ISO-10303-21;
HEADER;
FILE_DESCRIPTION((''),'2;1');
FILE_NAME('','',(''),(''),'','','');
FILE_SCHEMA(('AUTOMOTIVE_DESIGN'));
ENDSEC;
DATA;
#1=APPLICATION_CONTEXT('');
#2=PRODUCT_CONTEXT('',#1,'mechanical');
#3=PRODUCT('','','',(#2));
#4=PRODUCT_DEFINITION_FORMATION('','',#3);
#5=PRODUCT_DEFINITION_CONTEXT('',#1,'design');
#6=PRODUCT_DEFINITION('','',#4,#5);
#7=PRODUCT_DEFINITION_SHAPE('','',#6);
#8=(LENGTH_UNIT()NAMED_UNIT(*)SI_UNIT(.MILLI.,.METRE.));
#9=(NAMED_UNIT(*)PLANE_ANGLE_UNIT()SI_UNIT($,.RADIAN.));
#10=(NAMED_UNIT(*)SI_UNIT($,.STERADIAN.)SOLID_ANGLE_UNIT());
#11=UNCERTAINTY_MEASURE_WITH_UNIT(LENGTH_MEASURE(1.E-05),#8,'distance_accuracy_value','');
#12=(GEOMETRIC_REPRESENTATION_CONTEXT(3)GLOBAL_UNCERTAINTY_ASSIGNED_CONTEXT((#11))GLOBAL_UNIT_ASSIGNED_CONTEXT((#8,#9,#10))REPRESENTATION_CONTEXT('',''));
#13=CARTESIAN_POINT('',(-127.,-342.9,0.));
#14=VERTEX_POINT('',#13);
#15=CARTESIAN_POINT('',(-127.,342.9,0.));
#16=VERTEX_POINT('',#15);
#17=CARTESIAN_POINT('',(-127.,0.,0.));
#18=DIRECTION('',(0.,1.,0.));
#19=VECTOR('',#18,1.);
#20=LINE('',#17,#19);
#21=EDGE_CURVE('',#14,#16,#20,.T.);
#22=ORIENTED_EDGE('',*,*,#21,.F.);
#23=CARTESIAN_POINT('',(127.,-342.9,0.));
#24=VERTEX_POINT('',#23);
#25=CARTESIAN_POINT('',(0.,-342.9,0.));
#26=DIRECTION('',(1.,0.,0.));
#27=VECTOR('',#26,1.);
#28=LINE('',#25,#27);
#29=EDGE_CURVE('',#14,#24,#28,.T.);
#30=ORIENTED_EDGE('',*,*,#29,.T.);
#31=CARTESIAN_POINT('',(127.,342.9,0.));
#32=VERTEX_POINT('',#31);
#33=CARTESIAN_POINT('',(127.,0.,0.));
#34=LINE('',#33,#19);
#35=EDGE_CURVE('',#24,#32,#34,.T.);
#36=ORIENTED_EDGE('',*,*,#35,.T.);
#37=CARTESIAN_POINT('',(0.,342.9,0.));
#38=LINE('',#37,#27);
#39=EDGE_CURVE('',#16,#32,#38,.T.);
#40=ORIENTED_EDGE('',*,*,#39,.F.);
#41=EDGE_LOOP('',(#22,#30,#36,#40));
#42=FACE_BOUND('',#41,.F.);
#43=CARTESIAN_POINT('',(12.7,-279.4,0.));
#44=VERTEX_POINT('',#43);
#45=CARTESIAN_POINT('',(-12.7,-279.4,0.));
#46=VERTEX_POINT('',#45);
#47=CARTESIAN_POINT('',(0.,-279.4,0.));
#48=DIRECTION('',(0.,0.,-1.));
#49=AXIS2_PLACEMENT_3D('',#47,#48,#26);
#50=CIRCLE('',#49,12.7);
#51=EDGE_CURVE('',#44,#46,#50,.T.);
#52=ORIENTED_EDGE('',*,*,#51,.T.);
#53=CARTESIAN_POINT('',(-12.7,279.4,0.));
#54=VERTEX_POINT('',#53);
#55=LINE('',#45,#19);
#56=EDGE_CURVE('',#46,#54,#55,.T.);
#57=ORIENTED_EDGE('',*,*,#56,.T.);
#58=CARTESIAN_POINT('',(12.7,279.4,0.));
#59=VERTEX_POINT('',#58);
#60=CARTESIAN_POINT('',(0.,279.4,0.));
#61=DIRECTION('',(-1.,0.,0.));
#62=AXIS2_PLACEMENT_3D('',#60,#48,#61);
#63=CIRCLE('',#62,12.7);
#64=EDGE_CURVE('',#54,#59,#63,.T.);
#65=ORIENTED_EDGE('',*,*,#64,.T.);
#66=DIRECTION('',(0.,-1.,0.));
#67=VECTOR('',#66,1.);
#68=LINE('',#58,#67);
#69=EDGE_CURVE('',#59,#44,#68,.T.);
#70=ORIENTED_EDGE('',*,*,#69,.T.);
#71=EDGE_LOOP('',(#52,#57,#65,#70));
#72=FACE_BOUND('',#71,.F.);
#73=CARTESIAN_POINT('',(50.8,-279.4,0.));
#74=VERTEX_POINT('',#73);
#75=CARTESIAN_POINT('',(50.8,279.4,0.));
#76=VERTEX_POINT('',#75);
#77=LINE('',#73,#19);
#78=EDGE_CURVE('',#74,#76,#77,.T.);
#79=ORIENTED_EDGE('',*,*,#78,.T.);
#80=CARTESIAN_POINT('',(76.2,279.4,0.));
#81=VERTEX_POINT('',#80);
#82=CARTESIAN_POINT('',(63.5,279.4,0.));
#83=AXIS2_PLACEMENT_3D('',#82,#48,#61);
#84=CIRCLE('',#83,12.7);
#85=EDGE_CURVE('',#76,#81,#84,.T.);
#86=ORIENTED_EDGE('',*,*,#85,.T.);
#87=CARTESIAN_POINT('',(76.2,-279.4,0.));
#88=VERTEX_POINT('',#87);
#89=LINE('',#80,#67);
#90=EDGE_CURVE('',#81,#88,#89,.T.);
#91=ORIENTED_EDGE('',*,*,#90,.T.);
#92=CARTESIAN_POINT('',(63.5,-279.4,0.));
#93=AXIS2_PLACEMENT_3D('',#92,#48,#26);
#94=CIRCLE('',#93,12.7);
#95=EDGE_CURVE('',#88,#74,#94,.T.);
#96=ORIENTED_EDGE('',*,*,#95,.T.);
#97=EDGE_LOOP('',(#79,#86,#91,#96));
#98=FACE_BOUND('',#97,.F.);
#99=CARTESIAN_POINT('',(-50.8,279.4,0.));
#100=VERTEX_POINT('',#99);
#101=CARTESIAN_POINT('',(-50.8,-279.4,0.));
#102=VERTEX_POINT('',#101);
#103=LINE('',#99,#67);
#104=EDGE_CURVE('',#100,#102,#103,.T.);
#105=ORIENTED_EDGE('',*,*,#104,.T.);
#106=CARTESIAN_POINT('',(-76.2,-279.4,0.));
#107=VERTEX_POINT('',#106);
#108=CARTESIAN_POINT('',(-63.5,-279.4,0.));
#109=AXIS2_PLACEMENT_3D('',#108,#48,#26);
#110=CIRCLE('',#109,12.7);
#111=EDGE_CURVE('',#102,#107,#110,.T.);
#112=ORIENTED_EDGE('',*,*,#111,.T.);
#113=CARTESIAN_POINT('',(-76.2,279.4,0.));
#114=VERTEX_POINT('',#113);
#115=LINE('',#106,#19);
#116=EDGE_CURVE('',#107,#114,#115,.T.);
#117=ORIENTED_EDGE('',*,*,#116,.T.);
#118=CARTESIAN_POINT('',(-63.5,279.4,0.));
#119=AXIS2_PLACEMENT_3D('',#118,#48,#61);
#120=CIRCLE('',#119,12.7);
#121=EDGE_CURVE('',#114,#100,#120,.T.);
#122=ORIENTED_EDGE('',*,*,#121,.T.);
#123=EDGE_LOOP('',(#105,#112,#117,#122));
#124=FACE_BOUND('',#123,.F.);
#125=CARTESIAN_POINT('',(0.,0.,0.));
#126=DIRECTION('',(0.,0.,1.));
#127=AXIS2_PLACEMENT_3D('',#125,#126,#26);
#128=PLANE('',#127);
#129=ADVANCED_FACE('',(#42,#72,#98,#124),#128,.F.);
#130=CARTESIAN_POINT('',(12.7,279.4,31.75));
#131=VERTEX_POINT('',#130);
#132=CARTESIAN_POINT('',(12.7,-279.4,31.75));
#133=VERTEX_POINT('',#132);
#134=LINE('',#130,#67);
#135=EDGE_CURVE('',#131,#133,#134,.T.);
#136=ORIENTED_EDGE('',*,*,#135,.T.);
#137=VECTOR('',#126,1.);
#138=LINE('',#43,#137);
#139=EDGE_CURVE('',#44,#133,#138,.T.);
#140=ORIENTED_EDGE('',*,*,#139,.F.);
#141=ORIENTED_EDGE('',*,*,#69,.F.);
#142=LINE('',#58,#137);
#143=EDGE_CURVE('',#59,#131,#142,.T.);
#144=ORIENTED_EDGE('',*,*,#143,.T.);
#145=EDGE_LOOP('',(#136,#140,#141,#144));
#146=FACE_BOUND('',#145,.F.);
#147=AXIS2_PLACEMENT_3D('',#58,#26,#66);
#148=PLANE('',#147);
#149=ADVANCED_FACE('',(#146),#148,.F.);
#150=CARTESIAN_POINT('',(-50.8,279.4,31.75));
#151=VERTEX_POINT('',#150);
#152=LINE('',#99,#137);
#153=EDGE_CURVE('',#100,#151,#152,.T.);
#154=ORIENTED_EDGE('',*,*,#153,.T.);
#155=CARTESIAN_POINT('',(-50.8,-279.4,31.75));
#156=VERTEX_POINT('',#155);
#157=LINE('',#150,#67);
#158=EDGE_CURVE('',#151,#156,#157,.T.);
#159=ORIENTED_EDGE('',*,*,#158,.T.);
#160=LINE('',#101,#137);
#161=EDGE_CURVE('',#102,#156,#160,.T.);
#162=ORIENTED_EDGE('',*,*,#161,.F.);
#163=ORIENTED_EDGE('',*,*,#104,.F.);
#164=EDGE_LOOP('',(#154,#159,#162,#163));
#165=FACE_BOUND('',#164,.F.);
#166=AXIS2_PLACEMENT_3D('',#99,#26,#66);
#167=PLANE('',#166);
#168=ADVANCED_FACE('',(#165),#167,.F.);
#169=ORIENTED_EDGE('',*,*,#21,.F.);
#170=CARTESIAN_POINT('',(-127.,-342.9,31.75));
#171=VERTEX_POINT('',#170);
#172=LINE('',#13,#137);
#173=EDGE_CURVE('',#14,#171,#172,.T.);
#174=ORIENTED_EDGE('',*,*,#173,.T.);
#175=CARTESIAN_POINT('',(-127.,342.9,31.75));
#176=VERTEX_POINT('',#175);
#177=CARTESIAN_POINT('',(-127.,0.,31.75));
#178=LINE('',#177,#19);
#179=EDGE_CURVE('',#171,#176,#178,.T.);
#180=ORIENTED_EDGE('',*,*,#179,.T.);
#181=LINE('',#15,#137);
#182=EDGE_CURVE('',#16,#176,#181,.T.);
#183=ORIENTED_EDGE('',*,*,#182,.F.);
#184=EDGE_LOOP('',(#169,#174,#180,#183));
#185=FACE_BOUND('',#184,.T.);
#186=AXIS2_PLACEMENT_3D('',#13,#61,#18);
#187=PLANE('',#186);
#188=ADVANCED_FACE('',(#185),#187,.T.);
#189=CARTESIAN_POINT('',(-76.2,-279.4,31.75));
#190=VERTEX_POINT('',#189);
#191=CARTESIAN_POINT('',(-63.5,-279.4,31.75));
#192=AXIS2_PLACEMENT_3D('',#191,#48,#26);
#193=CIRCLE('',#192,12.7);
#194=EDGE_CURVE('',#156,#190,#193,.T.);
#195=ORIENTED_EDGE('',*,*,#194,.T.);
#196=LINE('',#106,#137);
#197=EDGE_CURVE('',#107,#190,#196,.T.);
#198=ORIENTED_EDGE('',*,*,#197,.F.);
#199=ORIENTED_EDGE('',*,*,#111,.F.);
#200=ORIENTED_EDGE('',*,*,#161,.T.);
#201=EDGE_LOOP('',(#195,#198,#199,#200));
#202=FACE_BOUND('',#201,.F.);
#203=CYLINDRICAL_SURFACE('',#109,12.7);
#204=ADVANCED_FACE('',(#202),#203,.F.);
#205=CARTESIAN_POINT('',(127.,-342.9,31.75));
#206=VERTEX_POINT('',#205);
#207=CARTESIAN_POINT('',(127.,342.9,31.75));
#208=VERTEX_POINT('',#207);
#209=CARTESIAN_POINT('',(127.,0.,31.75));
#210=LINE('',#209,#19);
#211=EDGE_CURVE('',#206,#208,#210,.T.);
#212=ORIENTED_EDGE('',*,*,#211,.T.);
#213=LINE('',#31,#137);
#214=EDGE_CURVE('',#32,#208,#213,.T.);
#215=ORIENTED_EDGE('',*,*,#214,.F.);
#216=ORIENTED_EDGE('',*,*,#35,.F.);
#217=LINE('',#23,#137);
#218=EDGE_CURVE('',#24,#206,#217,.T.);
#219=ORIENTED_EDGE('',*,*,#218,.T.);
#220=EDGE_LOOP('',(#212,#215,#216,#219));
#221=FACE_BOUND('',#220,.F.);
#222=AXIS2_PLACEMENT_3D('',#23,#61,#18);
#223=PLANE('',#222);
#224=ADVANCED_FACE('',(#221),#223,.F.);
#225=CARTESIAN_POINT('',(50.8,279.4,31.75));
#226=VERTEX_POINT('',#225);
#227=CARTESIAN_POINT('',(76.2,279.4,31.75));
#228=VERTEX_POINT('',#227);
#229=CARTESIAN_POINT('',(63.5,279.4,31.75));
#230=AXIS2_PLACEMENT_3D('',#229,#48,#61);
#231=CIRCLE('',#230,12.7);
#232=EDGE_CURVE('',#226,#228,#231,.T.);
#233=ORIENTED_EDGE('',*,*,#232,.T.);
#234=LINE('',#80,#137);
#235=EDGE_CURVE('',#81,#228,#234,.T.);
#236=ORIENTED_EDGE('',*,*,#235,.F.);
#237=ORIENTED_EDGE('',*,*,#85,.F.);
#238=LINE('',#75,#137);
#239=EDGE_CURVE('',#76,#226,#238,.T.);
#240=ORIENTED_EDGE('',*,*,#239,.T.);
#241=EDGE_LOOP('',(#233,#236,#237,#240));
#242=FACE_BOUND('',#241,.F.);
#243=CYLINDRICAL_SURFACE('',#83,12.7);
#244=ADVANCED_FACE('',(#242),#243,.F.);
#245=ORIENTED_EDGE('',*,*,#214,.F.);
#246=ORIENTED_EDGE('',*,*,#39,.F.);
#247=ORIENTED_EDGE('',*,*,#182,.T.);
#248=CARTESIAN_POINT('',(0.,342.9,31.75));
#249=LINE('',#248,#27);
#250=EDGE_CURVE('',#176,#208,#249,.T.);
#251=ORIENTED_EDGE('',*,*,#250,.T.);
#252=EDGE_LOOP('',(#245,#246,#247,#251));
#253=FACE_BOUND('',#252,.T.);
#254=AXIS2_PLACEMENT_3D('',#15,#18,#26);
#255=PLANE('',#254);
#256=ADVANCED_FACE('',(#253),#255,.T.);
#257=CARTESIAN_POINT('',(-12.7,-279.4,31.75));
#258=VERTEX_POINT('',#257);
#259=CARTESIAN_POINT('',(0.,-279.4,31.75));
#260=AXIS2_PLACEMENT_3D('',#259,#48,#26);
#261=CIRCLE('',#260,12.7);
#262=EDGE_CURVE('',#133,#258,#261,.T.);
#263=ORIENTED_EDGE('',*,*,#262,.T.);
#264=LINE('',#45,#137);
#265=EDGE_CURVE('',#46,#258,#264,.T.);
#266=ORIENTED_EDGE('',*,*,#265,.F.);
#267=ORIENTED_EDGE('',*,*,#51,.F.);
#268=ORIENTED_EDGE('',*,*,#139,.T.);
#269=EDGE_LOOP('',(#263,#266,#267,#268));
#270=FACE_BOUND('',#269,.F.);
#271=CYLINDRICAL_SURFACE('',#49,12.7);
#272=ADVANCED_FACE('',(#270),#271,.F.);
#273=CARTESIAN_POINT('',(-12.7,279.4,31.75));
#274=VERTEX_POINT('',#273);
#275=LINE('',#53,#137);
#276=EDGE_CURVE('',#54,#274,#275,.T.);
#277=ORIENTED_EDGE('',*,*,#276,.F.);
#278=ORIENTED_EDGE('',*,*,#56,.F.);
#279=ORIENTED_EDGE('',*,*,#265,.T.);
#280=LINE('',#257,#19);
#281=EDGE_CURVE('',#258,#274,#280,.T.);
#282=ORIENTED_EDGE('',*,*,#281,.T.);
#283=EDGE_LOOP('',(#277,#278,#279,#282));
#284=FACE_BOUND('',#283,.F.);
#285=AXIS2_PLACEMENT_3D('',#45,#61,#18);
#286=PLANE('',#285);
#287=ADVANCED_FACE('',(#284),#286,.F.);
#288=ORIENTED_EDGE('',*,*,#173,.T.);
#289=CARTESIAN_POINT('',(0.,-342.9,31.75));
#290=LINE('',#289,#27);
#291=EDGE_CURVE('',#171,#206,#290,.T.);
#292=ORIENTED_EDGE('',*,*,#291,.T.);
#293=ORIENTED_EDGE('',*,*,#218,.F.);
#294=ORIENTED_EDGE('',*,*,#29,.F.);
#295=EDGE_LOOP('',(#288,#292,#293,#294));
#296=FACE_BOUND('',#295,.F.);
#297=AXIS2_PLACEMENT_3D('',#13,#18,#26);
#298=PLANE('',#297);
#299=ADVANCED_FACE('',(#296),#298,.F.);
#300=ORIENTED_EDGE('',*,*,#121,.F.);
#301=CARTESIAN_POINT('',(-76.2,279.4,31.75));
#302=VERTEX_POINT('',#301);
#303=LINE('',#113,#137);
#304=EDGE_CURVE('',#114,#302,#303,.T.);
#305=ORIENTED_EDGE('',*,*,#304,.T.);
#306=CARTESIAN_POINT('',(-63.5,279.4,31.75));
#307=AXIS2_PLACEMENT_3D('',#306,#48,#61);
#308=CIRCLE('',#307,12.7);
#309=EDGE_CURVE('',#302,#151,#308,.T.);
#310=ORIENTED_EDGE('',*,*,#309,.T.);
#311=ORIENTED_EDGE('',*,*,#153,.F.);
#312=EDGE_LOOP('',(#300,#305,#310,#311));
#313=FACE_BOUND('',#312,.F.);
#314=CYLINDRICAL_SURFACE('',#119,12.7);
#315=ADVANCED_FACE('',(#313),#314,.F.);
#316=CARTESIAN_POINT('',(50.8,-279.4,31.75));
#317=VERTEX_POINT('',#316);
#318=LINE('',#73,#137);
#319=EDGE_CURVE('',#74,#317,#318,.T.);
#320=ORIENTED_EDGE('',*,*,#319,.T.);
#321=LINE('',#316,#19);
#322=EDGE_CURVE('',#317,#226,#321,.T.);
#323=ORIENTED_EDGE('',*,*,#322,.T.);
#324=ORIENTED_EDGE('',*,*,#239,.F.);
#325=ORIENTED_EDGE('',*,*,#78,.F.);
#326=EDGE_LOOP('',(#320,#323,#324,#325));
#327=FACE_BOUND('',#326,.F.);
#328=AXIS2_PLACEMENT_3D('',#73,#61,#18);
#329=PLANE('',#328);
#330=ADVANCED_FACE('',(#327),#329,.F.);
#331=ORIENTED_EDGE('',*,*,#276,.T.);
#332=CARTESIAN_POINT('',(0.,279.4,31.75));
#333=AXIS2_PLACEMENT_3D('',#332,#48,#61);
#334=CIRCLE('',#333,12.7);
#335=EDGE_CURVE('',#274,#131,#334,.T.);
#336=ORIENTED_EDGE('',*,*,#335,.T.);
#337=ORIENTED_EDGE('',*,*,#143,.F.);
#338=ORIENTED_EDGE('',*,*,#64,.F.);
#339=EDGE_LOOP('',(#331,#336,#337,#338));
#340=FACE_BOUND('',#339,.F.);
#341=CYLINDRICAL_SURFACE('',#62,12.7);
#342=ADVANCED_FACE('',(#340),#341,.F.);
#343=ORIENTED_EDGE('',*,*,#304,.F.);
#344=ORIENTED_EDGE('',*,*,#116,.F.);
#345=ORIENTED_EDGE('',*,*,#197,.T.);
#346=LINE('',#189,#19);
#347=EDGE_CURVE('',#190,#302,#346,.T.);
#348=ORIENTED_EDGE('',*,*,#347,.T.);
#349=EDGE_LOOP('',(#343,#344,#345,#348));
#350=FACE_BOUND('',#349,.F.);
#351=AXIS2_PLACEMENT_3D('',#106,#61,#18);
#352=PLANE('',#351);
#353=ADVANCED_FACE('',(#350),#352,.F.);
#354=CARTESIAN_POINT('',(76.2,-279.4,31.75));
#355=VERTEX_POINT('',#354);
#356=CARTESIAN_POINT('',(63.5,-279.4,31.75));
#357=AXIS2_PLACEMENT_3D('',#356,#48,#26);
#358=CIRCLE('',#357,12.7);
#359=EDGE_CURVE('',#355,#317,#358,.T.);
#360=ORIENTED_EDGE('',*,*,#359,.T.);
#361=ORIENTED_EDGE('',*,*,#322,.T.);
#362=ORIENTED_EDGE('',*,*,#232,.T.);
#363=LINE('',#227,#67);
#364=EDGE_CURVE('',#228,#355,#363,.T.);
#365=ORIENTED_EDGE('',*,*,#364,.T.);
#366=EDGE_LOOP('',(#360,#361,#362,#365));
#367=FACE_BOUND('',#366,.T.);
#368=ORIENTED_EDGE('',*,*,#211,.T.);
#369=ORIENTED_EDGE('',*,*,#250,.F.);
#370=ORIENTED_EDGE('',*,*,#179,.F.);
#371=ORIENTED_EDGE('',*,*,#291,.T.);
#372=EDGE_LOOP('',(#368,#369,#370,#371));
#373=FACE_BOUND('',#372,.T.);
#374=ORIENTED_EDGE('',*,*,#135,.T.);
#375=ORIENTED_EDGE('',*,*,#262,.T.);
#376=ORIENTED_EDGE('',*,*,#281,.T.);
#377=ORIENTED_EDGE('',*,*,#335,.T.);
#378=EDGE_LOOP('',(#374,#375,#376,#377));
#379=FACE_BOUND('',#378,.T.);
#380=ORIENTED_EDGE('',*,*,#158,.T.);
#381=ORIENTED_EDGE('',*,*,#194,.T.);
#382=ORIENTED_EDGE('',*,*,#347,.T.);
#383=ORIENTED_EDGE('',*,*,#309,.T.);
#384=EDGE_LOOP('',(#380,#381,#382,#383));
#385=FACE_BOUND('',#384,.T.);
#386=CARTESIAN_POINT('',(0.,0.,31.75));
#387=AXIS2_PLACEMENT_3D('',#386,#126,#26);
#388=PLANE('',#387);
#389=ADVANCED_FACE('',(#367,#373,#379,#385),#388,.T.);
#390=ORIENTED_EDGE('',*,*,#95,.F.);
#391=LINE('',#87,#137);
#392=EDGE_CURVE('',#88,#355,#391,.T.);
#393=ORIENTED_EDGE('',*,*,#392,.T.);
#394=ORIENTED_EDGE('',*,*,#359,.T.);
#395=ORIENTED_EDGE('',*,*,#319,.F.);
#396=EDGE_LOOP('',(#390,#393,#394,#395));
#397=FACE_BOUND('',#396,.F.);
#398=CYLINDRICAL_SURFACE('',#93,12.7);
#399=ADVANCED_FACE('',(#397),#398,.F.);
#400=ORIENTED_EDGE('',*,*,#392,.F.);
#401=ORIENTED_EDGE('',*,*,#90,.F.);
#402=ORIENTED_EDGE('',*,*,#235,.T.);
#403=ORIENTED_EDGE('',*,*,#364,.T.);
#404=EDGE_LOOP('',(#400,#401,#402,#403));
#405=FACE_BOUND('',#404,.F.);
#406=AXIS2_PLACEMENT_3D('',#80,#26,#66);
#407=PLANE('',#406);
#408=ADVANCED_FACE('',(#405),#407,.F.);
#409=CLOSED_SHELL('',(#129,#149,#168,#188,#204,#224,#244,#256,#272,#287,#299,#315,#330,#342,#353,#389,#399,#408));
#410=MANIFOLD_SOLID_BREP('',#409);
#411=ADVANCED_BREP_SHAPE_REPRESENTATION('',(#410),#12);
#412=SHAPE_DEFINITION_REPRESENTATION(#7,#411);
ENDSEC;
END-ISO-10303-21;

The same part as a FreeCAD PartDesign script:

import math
import FreeCAD as App
import Part
import Sketcher
Q = App.Units.Quantity

doc = App.newDocument("Part")
body = doc.addObject("PartDesign::Body", "Body")

sketch1 = body.newObject("Sketcher::SketchObject", "Sketch")
sketch1.AttachmentSupport = (doc.getObject("XY_Plane"), [""])
sketch1.MapMode = "FlatFace"
sketch1.addGeometry([
    Part.LineSegment(App.Vector(-127, 343, 0), App.Vector(-127, -343, 0)),
    Part.LineSegment(App.Vector(-127, -343, 0), App.Vector(127, -343, 0)),
    Part.LineSegment(App.Vector(127, -343, 0), App.Vector(127, 343, 0)),
    Part.LineSegment(App.Vector(127, 343, 0), App.Vector(-127, 343, 0)),
    Part.LineSegment(App.Vector(-76, -279, 0), App.Vector(-76, 279, 0)),
    Part.ArcOfCircle(Part.Circle(App.Vector(-64, 279, 0), App.Vector(0, 0, 1), 13), math.radians(0), math.radians(180)),
    Part.LineSegment(App.Vector(-51, 279, 0), App.Vector(-51, -279, 0)),
    Part.ArcOfCircle(Part.Circle(App.Vector(-64, -279, 0), App.Vector(0, 0, 1), 13), math.radians(180), math.radians(360)),
    Part.LineSegment(App.Vector(-13, -279, 0), App.Vector(-13, 279, 0)),
    Part.ArcOfCircle(Part.Circle(App.Vector(0, 279, 0), App.Vector(0, 0, 1), 13), math.radians(0), math.radians(180)),
    Part.LineSegment(App.Vector(13, 279, 0), App.Vector(13, -279, 0)),
    Part.ArcOfCircle(Part.Circle(App.Vector(0, -279, 0), App.Vector(0, 0, 1), 13), math.radians(180), math.radians(360)),
    Part.LineSegment(App.Vector(51, -279, 0), App.Vector(51, 279, 0)),
    Part.ArcOfCircle(Part.Circle(App.Vector(64, 279, 0), App.Vector(0, 0, 1), 13), math.radians(0), math.radians(180)),
    Part.LineSegment(App.Vector(76, 279, 0), App.Vector(76, -279, 0)),
    Part.ArcOfCircle(Part.Circle(App.Vector(64, -279, 0), App.Vector(0, 0, 1), 13), math.radians(180), math.radians(360)),
], False)
sketch1.addConstraint([
    Sketcher.Constraint("Coincident", 0, 2, 1, 1),
    Sketcher.Constraint("Coincident", 1, 2, 2, 1),
    Sketcher.Constraint("Coincident", 2, 2, 3, 1),
    Sketcher.Constraint("Coincident", 3, 2, 0, 1),
    Sketcher.Constraint("Tangent", 4, 2, 5, 2),
    Sketcher.Constraint("Tangent", 5, 1, 6, 1),
    Sketcher.Constraint("Tangent", 6, 2, 7, 2),
    Sketcher.Constraint("Tangent", 7, 1, 4, 1),
    Sketcher.Constraint("Tangent", 8, 2, 9, 2),
    Sketcher.Constraint("Tangent", 9, 1, 10, 1),
    Sketcher.Constraint("Tangent", 10, 2, 11, 2),
    Sketcher.Constraint("Tangent", 11, 1, 8, 1),
    Sketcher.Constraint("Tangent", 12, 2, 13, 2),
    Sketcher.Constraint("Tangent", 13, 1, 14, 1),
    Sketcher.Constraint("Tangent", 14, 2, 15, 2),
    Sketcher.Constraint("Tangent", 15, 1, 12, 1),
    Sketcher.Constraint("Vertical", 0),
    Sketcher.Constraint("Horizontal", 1),
    Sketcher.Constraint("Vertical", 2),
    Sketcher.Constraint("Horizontal", 3),
    Sketcher.Constraint("Vertical", 4),
    Sketcher.Constraint("Vertical", 6),
    Sketcher.Constraint("Vertical", 8),
    Sketcher.Constraint("Vertical", 10),
    Sketcher.Constraint("Vertical", 12),
    Sketcher.Constraint("Vertical", 14),
    Sketcher.Constraint("Equal", 7, 9),
    Sketcher.Constraint("Equal", 11, 13),
    Sketcher.Constraint("Symmetric", 9, 3, 11, 3, -1, 1),
    Sketcher.Constraint("Symmetric", 7, 3, 13, 3, -1, 1),
    Sketcher.Constraint("Symmetric", 0, 2, 2, 2, -1, 1),
    Sketcher.Constraint("Horizontal", 5, 3, 9, 3),
    Sketcher.Constraint("Horizontal", 7, 3, 11, 3),
    Sketcher.Constraint("Horizontal", 11, 3, 15, 3),
    Sketcher.Constraint("Radius", 5, Q("0.5 in")),
    Sketcher.Constraint("DistanceX", 1, 1, 1, 2, Q("10 in")),
    Sketcher.Constraint("DistanceY", 0, 2, 0, 1, Q("27 in")),
    Sketcher.Constraint("DistanceY", 4, 1, 4, 2, Q("22 in")),
    Sketcher.Constraint("DistanceX", 4, 2, -1, 1, Q("3 in")),
])
pad1 = body.newObject("PartDesign::Pad", "Pad")
pad1.Profile = sketch1
pad1.Length = Q("1.25 in")

doc.recompute()
